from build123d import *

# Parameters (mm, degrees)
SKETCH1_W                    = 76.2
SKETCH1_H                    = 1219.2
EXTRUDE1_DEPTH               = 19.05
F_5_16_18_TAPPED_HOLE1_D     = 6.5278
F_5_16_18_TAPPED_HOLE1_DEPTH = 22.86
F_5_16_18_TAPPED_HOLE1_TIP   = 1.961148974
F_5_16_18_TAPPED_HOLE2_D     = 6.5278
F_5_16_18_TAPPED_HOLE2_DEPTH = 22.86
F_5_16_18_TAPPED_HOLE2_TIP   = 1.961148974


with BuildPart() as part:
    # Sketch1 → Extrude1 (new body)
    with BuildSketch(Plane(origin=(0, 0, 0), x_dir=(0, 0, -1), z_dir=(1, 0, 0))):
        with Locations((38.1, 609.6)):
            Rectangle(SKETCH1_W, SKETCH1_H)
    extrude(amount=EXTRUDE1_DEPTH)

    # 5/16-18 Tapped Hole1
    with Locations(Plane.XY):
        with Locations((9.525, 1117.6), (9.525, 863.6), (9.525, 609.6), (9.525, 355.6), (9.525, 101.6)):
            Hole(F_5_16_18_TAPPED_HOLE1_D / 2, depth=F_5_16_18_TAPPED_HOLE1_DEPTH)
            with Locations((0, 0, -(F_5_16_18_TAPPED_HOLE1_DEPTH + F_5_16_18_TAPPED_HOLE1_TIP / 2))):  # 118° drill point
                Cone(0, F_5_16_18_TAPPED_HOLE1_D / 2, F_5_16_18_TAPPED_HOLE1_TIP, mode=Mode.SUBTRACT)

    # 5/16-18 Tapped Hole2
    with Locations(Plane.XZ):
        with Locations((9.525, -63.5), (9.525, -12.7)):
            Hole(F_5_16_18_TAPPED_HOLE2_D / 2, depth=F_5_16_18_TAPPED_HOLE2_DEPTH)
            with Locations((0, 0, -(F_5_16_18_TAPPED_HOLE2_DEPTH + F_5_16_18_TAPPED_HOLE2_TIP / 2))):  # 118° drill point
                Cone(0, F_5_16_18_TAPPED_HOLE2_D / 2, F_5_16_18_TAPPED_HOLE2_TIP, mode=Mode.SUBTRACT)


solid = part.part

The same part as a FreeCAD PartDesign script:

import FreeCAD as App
import Part
import Sketcher

V = App.Vector
Q = App.Units.Quantity

doc = App.newDocument("Part")
params = doc.addObject("Spreadsheet::Sheet", "Params")
for row, (alias, value) in enumerate([
    ("sketch1_width", "48 in"),
    ("sketch1_height", "3 in"),
    ("pad1_length", "0.75 in"),
    ("sketch2_diameter", "0.257 in"),
    ("hole_diameter", "0.257 in"),
    ("hole_depth", "0.9 in"),
    ("sketch3_diameter", "0.257 in"),
    ("hole2_diameter", "0.257 in"),
    ("hole2_depth", "0.9 in"),
], start=1):
    params.set(f"A{row}", alias)
    params.set(f"B{row}", "=" + value)
    params.setAlias(f"B{row}", alias)

body = doc.addObject("PartDesign::Body", "Body")

# Sketch on YZ plane
sketch1 = body.newObject("Sketcher::SketchObject", "Sketch")
sketch1.AttachmentSupport = (doc.getObject("YZ_Plane"), [""])
sketch1.MapMode = "FlatFace"
sketch1.addGeometry(Part.LineSegment(V(1219, 0, 0), V(0, 0, 0)), False)
sketch1.addGeometry(Part.LineSegment(V(0, 0, 0), V(0, -76, 0)), False)
sketch1.addGeometry(Part.LineSegment(V(0, -76, 0), V(1219, -76, 0)), False)
sketch1.addGeometry(Part.LineSegment(V(1219, -76, 0), V(1219, 0, 0)), False)
sketch1.addConstraint(Sketcher.Constraint("Coincident", 0, 2, 1, 1))
sketch1.addConstraint(Sketcher.Constraint("Coincident", 1, 2, 2, 1))
sketch1.addConstraint(Sketcher.Constraint("Coincident", 2, 2, 3, 1))
sketch1.addConstraint(Sketcher.Constraint("Coincident", 3, 2, 0, 1))
sketch1.addConstraint(Sketcher.Constraint("Horizontal", 0))
sketch1.addConstraint(Sketcher.Constraint("Vertical", 1))
sketch1.addConstraint(Sketcher.Constraint("Horizontal", 2))
sketch1.addConstraint(Sketcher.Constraint("Vertical", 3))
sketch1.addConstraint(Sketcher.Constraint("Coincident", 0, 2, -1, 1))
sketch1.addConstraint(Sketcher.Constraint("DistanceX", 0, 2, 0, 1, Q("48 in")))
sketch1.addConstraint(Sketcher.Constraint("DistanceY", 1, 2, 1, 1, Q("3 in")))
sketch1.setExpression("Constraints[9]", "Params.sketch1_width")
sketch1.setExpression("Constraints[10]", "Params.sketch1_height")
pad1 = body.newObject("PartDesign::Pad", "Pad")
pad1.Profile = sketch1
pad1.setExpression("Length", "Params.pad1_length")

# Sketch on XY plane
sketch2 = body.newObject("Sketcher::SketchObject", "Sketch001")
sketch2.AttachmentSupport = (doc.getObject("XY_Plane"), [""])
sketch2.MapMode = "FlatFace"
sketch2.addGeometry(Part.Circle(V(9.5, 1117.6, 0), V(0, 0, 1), 3.3), False)
sketch2.addGeometry(Part.Circle(V(9.5, 863.6, 0), V(0, 0, 1), 3.3), False)
sketch2.addGeometry(Part.Circle(V(9.5, 609.6, 0), V(0, 0, 1), 3.3), False)
sketch2.addGeometry(Part.Circle(V(9.5, 355.6, 0), V(0, 0, 1), 3.3), False)
sketch2.addGeometry(Part.Circle(V(9.5, 101.6, 0), V(0, 0, 1), 3.3), False)
sketch2.addConstraint(Sketcher.Constraint("Equal", 0, 1))
sketch2.addConstraint(Sketcher.Constraint("Equal", 1, 2))
sketch2.addConstraint(Sketcher.Constraint("Equal", 2, 3))
sketch2.addConstraint(Sketcher.Constraint("Equal", 3, 4))
sketch2.addConstraint(Sketcher.Constraint("Vertical", 0, 3, 1, 3))
sketch2.addConstraint(Sketcher.Constraint("Vertical", 1, 3, 2, 3))
sketch2.addConstraint(Sketcher.Constraint("Vertical", 2, 3, 3, 3))
sketch2.addConstraint(Sketcher.Constraint("Vertical", 3, 3, 4, 3))
sketch2.addConstraint(Sketcher.Constraint("Diameter", 0, Q("0.257 in")))
sketch2.addConstraint(Sketcher.Constraint("DistanceY", -1, 1, 0, 3, Q("44 in")))
sketch2.addConstraint(Sketcher.Constraint("DistanceY", -1, 1, 1, 3, Q("34 in")))
sketch2.addConstraint(Sketcher.Constraint("DistanceY", -1, 1, 2, 3, Q("24 in")))
sketch2.addConstraint(Sketcher.Constraint("DistanceY", -1, 1, 3, 3, Q("14 in")))
sketch2.addConstraint(Sketcher.Constraint("DistanceY", -1, 1, 4, 3, Q("4 in")))
sketch2.addConstraint(Sketcher.Constraint("DistanceX", -1, 1, 0, 3, Q("0.375 in")))
sketch2.setExpression("Constraints[8]", "Params.sketch2_diameter")
doc.recompute()
hole = body.newObject("PartDesign::Hole", "Hole")
hole.Profile = sketch2
hole.ThreadType = "None"
hole.setExpression("Diameter", "Params.hole_diameter")
hole.DepthType = "Dimension"
hole.setExpression("Depth", "Params.hole_depth")
hole.DrillPoint = "Angled"
hole.DrillPointAngle = 118

# Sketch on XZ plane
sketch3 = body.newObject("Sketcher::SketchObject", "Sketch002")
sketch3.AttachmentSupport = (doc.getObject("XZ_Plane"), [""])
sketch3.MapMode = "FlatFace"
sketch3.addGeometry(Part.Circle(V(9.5, -63.5, 0), V(0, 0, 1), 3.3), False)
sketch3.addGeometry(Part.Circle(V(9.5, -12.7, 0), V(0, 0, 1), 3.3), False)
sketch3.addConstraint(Sketcher.Constraint("Equal", 0, 1))
sketch3.addConstraint(Sketcher.Constraint("Vertical", 0, 3, 1, 3))
sketch3.addConstraint(Sketcher.Constraint("Diameter", 0, Q("0.257 in")))
sketch3.addConstraint(Sketcher.Constraint("DistanceY", 0, 3, 1, 3, Q("2 in")))
sketch3.addConstraint(Sketcher.Constraint("DistanceY", 0, 3, -1, 1, Q("2.5 in")))
sketch3.addConstraint(Sketcher.Constraint("DistanceX", -1, 1, 0, 3, Q("0.375 in")))
sketch3.setExpression("Constraints[2]", "Params.sketch3_diameter")
doc.recompute()
hole2 = body.newObject("PartDesign::Hole", "Hole001")
hole2.Profile = sketch3
hole2.ThreadType = "None"
hole2.setExpression("Diameter", "Params.hole2_diameter")
hole2.DepthType = "Dimension"
hole2.setExpression("Depth", "Params.hole2_depth")
hole2.DrillPoint = "Angled"
hole2.DrillPointAngle = 118

doc.recompute()
